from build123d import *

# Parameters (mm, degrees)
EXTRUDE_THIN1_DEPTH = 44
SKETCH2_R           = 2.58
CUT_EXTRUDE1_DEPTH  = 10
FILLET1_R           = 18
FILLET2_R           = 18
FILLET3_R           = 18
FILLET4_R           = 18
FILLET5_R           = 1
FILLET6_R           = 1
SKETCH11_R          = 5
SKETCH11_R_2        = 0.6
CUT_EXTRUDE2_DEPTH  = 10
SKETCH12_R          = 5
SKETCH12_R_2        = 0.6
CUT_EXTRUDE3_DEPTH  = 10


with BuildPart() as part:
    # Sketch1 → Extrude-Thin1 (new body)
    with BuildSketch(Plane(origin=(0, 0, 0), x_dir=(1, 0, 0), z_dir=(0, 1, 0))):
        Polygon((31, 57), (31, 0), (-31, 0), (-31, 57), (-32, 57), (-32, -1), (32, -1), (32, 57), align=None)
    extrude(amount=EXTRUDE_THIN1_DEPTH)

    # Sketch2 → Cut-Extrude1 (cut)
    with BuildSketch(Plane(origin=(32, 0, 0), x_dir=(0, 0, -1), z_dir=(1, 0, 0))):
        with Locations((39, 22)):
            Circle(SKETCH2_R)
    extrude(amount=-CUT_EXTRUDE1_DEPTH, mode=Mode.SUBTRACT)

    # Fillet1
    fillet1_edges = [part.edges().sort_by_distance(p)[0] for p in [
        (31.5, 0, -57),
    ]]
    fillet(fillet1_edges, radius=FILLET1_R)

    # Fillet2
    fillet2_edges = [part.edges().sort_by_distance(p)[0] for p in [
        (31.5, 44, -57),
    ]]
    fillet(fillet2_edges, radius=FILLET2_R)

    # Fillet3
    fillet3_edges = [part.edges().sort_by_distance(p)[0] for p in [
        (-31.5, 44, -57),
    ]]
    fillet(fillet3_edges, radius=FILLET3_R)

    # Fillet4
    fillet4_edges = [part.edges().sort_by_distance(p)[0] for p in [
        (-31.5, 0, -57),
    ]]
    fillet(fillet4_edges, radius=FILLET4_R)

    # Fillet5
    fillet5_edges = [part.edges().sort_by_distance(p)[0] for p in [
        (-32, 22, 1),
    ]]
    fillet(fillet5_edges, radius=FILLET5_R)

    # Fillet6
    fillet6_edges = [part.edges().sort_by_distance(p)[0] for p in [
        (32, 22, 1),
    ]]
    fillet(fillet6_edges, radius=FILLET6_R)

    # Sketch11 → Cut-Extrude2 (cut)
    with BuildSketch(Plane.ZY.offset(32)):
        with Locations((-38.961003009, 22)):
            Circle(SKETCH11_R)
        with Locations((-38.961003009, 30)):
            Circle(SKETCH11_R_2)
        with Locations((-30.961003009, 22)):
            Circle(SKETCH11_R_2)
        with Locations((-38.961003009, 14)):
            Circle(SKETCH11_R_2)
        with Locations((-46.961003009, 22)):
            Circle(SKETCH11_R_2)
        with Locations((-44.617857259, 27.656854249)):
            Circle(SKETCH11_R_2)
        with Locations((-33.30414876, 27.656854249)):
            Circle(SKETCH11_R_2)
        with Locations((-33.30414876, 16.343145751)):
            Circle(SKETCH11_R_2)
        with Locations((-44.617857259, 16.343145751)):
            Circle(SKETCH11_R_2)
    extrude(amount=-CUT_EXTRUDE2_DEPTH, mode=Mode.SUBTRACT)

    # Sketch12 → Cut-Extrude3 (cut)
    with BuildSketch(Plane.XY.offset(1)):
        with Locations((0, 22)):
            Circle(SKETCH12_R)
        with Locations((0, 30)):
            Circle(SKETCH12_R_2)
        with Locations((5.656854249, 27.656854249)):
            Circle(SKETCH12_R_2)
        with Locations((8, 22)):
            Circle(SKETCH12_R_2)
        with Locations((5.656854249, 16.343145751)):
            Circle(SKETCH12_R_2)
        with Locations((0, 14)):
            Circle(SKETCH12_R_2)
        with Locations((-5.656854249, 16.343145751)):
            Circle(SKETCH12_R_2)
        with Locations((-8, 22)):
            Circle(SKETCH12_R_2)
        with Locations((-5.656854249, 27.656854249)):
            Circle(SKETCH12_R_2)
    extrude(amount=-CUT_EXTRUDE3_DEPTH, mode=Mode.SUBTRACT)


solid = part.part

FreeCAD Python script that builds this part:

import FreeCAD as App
import Part
import Sketcher


def edges_at(feature, points):
    """Names of the edges that pass closest to the given points."""
    edges = feature.Shape.Edges
    near = lambda p: min(range(len(edges)), key=lambda i: edges[i].distToShape(Part.Vertex(*p))[0])
    return sorted({f"Edge{near(p) + 1}" for p in points})

doc = App.newDocument("Part")
params = doc.addObject("Spreadsheet::Sheet", "Params")
for row, (alias, value) in enumerate([
    ("sketch1_width", "62 mm"),
    ("sketch1_width2", "1 mm"),
    ("sketch1_height", "57 mm"),
    ("sketch1_height2", "58 mm"),
    ("pad1_length", "44 mm"),
    ("sketch2_diameter", "5.16 mm"),
    ("pocket1_length", "10 mm"),
    ("fillet_radius", "18 mm"),
    ("fillet2_radius", "18 mm"),
    ("fillet3_radius", "18 mm"),
    ("fillet4_radius", "18 mm"),
    ("fillet5_radius", "1 mm"),
    ("fillet6_radius", "1 mm"),
    ("sketch3_diameter", "10 mm"),
    ("sketch3_diameter2", "1.2 mm"),
    ("pocket2_length", "10 mm"),
    ("sketch4_diameter", "10 mm"),
    ("sketch4_diameter2", "1.2 mm"),
    ("pocket3_length", "10 mm"),
], start=1):
    params.set(f"A{row}", alias)
    params.set(f"B{row}", "=" + value)
    params.setAlias(f"B{row}", alias)

body = doc.addObject("PartDesign::Body", "Body")

# Sketch on XZ plane
sketch1 = body.newObject("Sketcher::SketchObject", "Sketch")
sketch1.AttachmentSupport = (doc.getObject("XZ_Plane"), [""])
sketch1.MapMode = "FlatFace"
sketch1.addGeometry(Part.LineSegment(App.Vector(31, -57, 0), App.Vector(31, 0, 0)), False)
sketch1.addGeometry(Part.LineSegment(App.Vector(31, 0, 0), App.Vector(-31, 0, 0)), False)
sketch1.addGeometry(Part.LineSegment(App.Vector(-31, 0, 0), App.Vector(-31, -57, 0)), False)
sketch1.addGeometry(Part.LineSegment(App.Vector(-31, -57, 0), App.Vector(-32, -57, 0)), False)
sketch1.addGeometry(Part.LineSegment(App.Vector(-32, -57, 0), App.Vector(-32, 1, 0)), False)
sketch1.addGeometry(Part.LineSegment(App.Vector(-32, 1, 0), App.Vector(32, 1, 0)), False)
sketch1.addGeometry(Part.LineSegment(App.Vector(32, 1, 0), App.Vector(32, -57, 0)), False)
sketch1.addGeometry(Part.LineSegment(App.Vector(32, -57, 0), App.Vector(31, -57, 0)), False)
sketch1.addConstraint(Sketcher.Constraint("Coincident", 0, 2, 1, 1))
sketch1.addConstraint(Sketcher.Constraint("Coincident", 1, 2, 2, 1))
sketch1.addConstraint(Sketcher.Constraint("Coincident", 2, 2, 3, 1))
sketch1.addConstraint(Sketcher.Constraint("Coincident", 3, 2, 4, 1))
sketch1.addConstraint(Sketcher.Constraint("Coincident", 4, 2, 5, 1))
sketch1.addConstraint(Sketcher.Constraint("Coincident", 5, 2, 6, 1))
sketch1.addConstraint(Sketcher.Constraint("Coincident", 6, 2, 7, 1))
sketch1.addConstraint(Sketcher.Constraint("Coincident", 7, 2, 0, 1))
sketch1.addConstraint(Sketcher.Constraint("Vertical", 0))
sketch1.addConstraint(Sketcher.Constraint("Horizontal", 1))
sketch1.addConstraint(Sketcher.Constraint("Vertical", 2))
sketch1.addConstraint(Sketcher.Constraint("Horizontal", 3))
sketch1.addConstraint(Sketcher.Constraint("Vertical", 4))
sketch1.addConstraint(Sketcher.Constraint("Horizontal", 5))
sketch1.addConstraint(Sketcher.Constraint("Vertical", 6))
sketch1.addConstraint(Sketcher.Constraint("Horizontal", 7))
sketch1.addConstraint(Sketcher.Constraint("Symmetric", 0, 2, 1, 2, -1, 1))
sketch1.addConstraint(Sketcher.Constraint("Symmetric", 3, 2, 6, 2, -2))
sketch1.addConstraint(Sketcher.Constraint("DistanceX", 1, 2, 1, 1, 62.0))
sketch1.addConstraint(Sketcher.Constraint("DistanceX", 3, 2, 3, 1, 1.0))
sketch1.addConstraint(Sketcher.Constraint("DistanceY", 0, 1, 0, 2, 57.0))
sketch1.addConstraint(Sketcher.Constraint("DistanceY", 4, 1, 4, 2, 58.0))
sketch1.setExpression("Constraints[18]", "Params.sketch1_width")
sketch1.setExpression("Constraints[19]", "Params.sketch1_width2")
sketch1.setExpression("Constraints[20]", "Params.sketch1_height")
sketch1.setExpression("Constraints[21]", "Params.sketch1_height2")
pad1 = body.newObject("PartDesign::Pad", "Pad")
pad1.Profile = sketch1
pad1.setExpression("Length", "Params.pad1_length")
pad1.Reversed = True

# Sketch on YZ plane
sketch2 = body.newObject("Sketcher::SketchObject", "Sketch001")
sketch2.AttachmentSupport = (doc.getObject("YZ_Plane"), [""])
sketch2.MapMode = "FlatFace"
sketch2.AttachmentOffset = App.Placement(App.Vector(0, 0, 32), App.Rotation())
sketch2.addGeometry(Part.Circle(App.Vector(22, -39, 0), App.Vector(0, 0, 1), 2.6), False)
sketch2.addConstraint(Sketcher.Constraint("Diameter", 0, 5.16))
sketch2.addConstraint(Sketcher.Constraint("DistanceX", -1, 1, 0, 3, 22.0))
sketch2.addConstraint(Sketcher.Constraint("DistanceY", 0, 3, -1, 1, 39.0))
sketch2.setExpression("Constraints[0]", "Params.sketch2_diameter")
pocket1 = body.newObject("PartDesign::Pocket", "Pocket")
pocket1.Profile = sketch2
pocket1.setExpression("Length", "Params.pocket1_length")
doc.recompute()

fillet = body.newObject("PartDesign::Fillet", "Fillet")
fillet.Base = (pocket1, edges_at(pocket1, [(31.5, 0, -57)]))
fillet.setExpression("Radius", "Params.fillet_radius")
doc.recompute()

fillet2 = body.newObject("PartDesign::Fillet", "Fillet001")
fillet2.Base = (fillet, edges_at(fillet, [(31.5, 44, -57)]))
fillet2.setExpression("Radius", "Params.fillet2_radius")
doc.recompute()

fillet3 = body.newObject("PartDesign::Fillet", "Fillet002")
fillet3.Base = (fillet2, edges_at(fillet2, [(-31.5, 44, -57)]))
fillet3.setExpression("Radius", "Params.fillet3_radius")
doc.recompute()

fillet4 = body.newObject("PartDesign::Fillet", "Fillet003")
fillet4.Base = (fillet3, edges_at(fillet3, [(-31.5, 0, -57)]))
fillet4.setExpression("Radius", "Params.fillet4_radius")
doc.recompute()

fillet5 = body.newObject("PartDesign::Fillet", "Fillet004")
fillet5.Base = (fillet4, edges_at(fillet4, [(-32, 22, 1)]))
fillet5.setExpression("Radius", "Params.fillet5_radius")
doc.recompute()

fillet6 = body.newObject("PartDesign::Fillet", "Fillet005")
fillet6.Base = (fillet5, edges_at(fillet5, [(32, 22, 1)]))
fillet6.setExpression("Radius", "Params.fillet6_radius")

# Sketch on YZ plane
sketch3 = body.newObject("Sketcher::SketchObject", "Sketch002")
sketch3.AttachmentSupport = (doc.getObject("YZ_Plane"), [""])
sketch3.MapMode = "FlatFace"
sketch3.AttachmentOffset = App.Placement(App.Vector(0, 0, -32), App.Rotation())
sketch3.addGeometry(Part.Circle(App.Vector(22, -39, 0), App.Vector(0, 0, 1), 5), False)
sketch3.addGeometry(Part.Circle(App.Vector(30, -39, 0), App.Vector(0, 0, 1), 0.6), False)
sketch3.addGeometry(Part.Circle(App.Vector(22, -31, 0), App.Vector(0, 0, 1), 0.6), False)
sketch3.addGeometry(Part.Circle(App.Vector(14, -39, 0), App.Vector(0, 0, 1), 0.6), False)
sketch3.addGeometry(Part.Circle(App.Vector(22, -47, 0), App.Vector(0, 0, 1), 0.6), False)
sketch3.addGeometry(Part.Circle(App.Vector(27.7, -44.6, 0), App.Vector(0, 0, 1), 0.6), False)
sketch3.addGeometry(Part.Circle(App.Vector(27.7, -33.3, 0), App.Vector(0, 0, 1), 0.6), False)
sketch3.addGeometry(Part.Circle(App.Vector(16.3, -33.3, 0), App.Vector(0, 0, 1), 0.6), False)
sketch3.addGeometry(Part.Circle(App.Vector(16.3, -44.6, 0), App.Vector(0, 0, 1), 0.6), False)
sketch3.addConstraint(Sketcher.Constraint("Equal", 1, 2))
sketch3.addConstraint(Sketcher.Constraint("Equal", 2, 3))
sketch3.addConstraint(Sketcher.Constraint("Equal", 3, 4))
sketch3.addConstraint(Sketcher.Constraint("Equal", 4, 5))
sketch3.addConstraint(Sketcher.Constraint("Equal", 5, 6))
sketch3.addConstraint(Sketcher.Constraint("Equal", 6, 7))
sketch3.addConstraint(Sketcher.Constraint("Equal", 7, 8))
sketch3.addConstraint(Sketcher.Constraint("Horizontal", 0, 3, 1, 3))
sketch3.addConstraint(Sketcher.Constraint("Horizontal", 1, 3, 3, 3))
sketch3.addConstraint(Sketcher.Constraint("Horizontal", 6, 3, 7, 3))
sketch3.addConstraint(Sketcher.Constraint("Horizontal", 5, 3, 8, 3))
sketch3.addConstraint(Sketcher.Constraint("Vertical", 0, 3, 2, 3))
sketch3.addConstraint(Sketcher.Constraint("Vertical", 2, 3, 4, 3))
sketch3.addConstraint(Sketcher.Constraint("Vertical", 5, 3, 6, 3))
sketch3.addConstraint(Sketcher.Constraint("Vertical", 7, 3, 8, 3))
sketch3.addConstraint(Sketcher.Constraint("Diameter", 0, 10.0))
sketch3.addConstraint(Sketcher.Constraint("Diameter", 1, 1.2))
sketch3.addConstraint(Sketcher.Constraint("DistanceX", -1, 1, 0, 3, 22.0))
sketch3.addConstraint(Sketcher.Constraint("DistanceX", -1, 1, 1, 3, 30.0))
sketch3.addConstraint(Sketcher.Constraint("DistanceX", -1, 1, 3, 3, 14.0))
sketch3.addConstraint(Sketcher.Constraint("DistanceY", 0, 3, 2, 3, 8.0))
sketch3.addConstraint(Sketcher.Constraint("DistanceY", 4, 3, 0, 3, 8.0))
sketch3.addConstraint(Sketcher.Constraint("DistanceY", 6, 3, -1, 1, 33.304149))
sketch3.addConstraint(Sketcher.Constraint("DistanceY", 5, 3, 6, 3, 11.313708))
sketch3.addConstraint(Sketcher.Constraint("DistanceX", 7, 3, 6, 3, 11.313708))
sketch3.addConstraint(Sketcher.Constraint("DistanceY", 0, 3, -1, 1, 38.961003))
sketch3.addConstraint(Sketcher.Constraint("DistanceX", -1, 1, 5, 3, 27.656854))
sketch3.setExpression("Constraints[15]", "Params.sketch3_diameter")
sketch3.setExpression("Constraints[16]", "Params.sketch3_diameter2")
pocket2 = body.newObject("PartDesign::Pocket", "Pocket001")
pocket2.Profile = sketch3
pocket2.setExpression("Length", "Params.pocket2_length")
pocket2.Reversed = True

# Sketch on XY plane
sketch4 = body.newObject("Sketcher::SketchObject", "Sketch003")
sketch4.AttachmentSupport = (doc.getObject("XY_Plane"), [""])
sketch4.MapMode = "FlatFace"
sketch4.AttachmentOffset = App.Placement(App.Vector(0, 0, 1), App.Rotation())
sketch4.addGeometry(Part.Circle(App.Vector(0, 22, 0), App.Vector(0, 0, 1), 5), False)
sketch4.addGeometry(Part.Circle(App.Vector(0, 30, 0), App.Vector(0, 0, 1), 0.6), False)
sketch4.addGeometry(Part.Circle(App.Vector(5.7, 27.7, 0), App.Vector(0, 0, 1), 0.6), False)
sketch4.addGeometry(Part.Circle(App.Vector(8, 22, 0), App.Vector(0, 0, 1), 0.6), False)
sketch4.addGeometry(Part.Circle(App.Vector(5.7, 16.3, 0), App.Vector(0, 0, 1), 0.6), False)
sketch4.addGeometry(Part.Circle(App.Vector(0, 14, 0), App.Vector(0, 0, 1), 0.6), False)
sketch4.addGeometry(Part.Circle(App.Vector(-5.7, 16.3, 0), App.Vector(0, 0, 1), 0.6), False)
sketch4.addGeometry(Part.Circle(App.Vector(-8, 22, 0), App.Vector(0, 0, 1), 0.6), False)
sketch4.addGeometry(Part.Circle(App.Vector(-5.7, 27.7, 0), App.Vector(0, 0, 1), 0.6), False)
sketch4.addConstraint(Sketcher.Constraint("Equal", 1, 2))
sketch4.addConstraint(Sketcher.Constraint("Equal", 2, 3))
sketch4.addConstraint(Sketcher.Constraint("Equal", 3, 4))
sketch4.addConstraint(Sketcher.Constraint("Equal", 4, 5))
sketch4.addConstraint(Sketcher.Constraint("Equal", 5, 6))
sketch4.addConstraint(Sketcher.Constraint("Equal", 6, 7))
sketch4.addConstraint(Sketcher.Constraint("Equal", 7, 8))
sketch4.addConstraint(Sketcher.Constraint("Symmetric", 4, 3, 6, 3, -2))
sketch4.addConstraint(Sketcher.Constraint("Symmetric", 3, 3, 7, 3, -2))
sketch4.addConstraint(Sketcher.Constraint("Symmetric", 2, 3, 8, 3, -2))
sketch4.addConstraint(Sketcher.Constraint("PointOnObject", 0, 3, -2))
sketch4.addConstraint(Sketcher.Constraint("PointOnObject", 1, 3, -2))
sketch4.addConstraint(Sketcher.Constraint("PointOnObject", 5, 3, -2))
sketch4.addConstraint(Sketcher.Constraint("Horizontal", 0, 3, 3, 3))
sketch4.addConstraint(Sketcher.Constraint("Vertical", 2, 3, 4, 3))
sketch4.addConstraint(Sketcher.Constraint("Diameter", 0, 10.0))
sketch4.addConstraint(Sketcher.Constraint("Diameter", 1, 1.2))
sketch4.addConstraint(Sketcher.Constraint("DistanceY", -1, 1, 0, 3, 22.0))
sketch4.addConstraint(Sketcher.Constraint("DistanceY", -1, 1, 1, 3, 30.0))
sketch4.addConstraint(Sketcher.Constraint("DistanceX", -1, 1, 3, 3, 8.0))
sketch4.addConstraint(Sketcher.Constraint("DistanceY", -1, 1, 5, 3, 14.0))
sketch4.addConstraint(Sketcher.Constraint("DistanceY", 4, 3, 2, 3, 11.313708))
sketch4.addConstraint(Sketcher.Constraint("DistanceX", 6, 3, 4, 3, 11.313708))
sketch4.addConstraint(Sketcher.Constraint("DistanceY", -1, 1, 2, 3, 27.656854))
sketch4.setExpression("Constraints[15]", "Params.sketch4_diameter")
sketch4.setExpression("Constraints[16]", "Params.sketch4_diameter2")
pocket3 = body.newObject("PartDesign::Pocket", "Pocket002")
pocket3.Profile = sketch4
pocket3.setExpression("Length", "Params.pocket3_length")

doc.recompute()
